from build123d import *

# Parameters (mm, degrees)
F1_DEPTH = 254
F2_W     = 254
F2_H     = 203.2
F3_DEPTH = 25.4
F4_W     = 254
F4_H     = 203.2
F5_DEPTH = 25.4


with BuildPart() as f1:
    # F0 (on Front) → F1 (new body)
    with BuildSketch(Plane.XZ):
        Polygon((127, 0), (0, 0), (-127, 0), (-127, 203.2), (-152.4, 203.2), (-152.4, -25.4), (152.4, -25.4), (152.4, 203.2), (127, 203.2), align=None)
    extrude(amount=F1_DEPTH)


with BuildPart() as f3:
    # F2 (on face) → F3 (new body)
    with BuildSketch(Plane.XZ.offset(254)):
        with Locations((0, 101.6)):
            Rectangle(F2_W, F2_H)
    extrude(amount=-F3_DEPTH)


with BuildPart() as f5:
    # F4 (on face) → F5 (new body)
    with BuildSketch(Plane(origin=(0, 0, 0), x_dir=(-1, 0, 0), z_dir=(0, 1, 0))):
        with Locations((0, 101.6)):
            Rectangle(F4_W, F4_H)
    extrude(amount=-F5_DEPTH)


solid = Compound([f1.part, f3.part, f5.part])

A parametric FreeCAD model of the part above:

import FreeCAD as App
import Part
import Sketcher
Q = App.Units.Quantity

doc = App.newDocument("Part")
body = doc.addObject("PartDesign::Body", "Body")

# Sketch on XZ plane
sketch1 = body.newObject("Sketcher::SketchObject", "Sketch")
sketch1.AttachmentSupport = (doc.getObject("XZ_Plane"), [""])
sketch1.MapMode = "FlatFace"
sketch1.addGeometry(Part.LineSegment(App.Vector(127, 0, 0), App.Vector(-127, 0, 0)), False)
sketch1.addGeometry(Part.LineSegment(App.Vector(-127, 0, 0), App.Vector(-127, 203, 0)), False)
sketch1.addGeometry(Part.LineSegment(App.Vector(-127, 203, 0), App.Vector(-152, 203, 0)), False)
sketch1.addGeometry(Part.LineSegment(App.Vector(-152, 203, 0), App.Vector(-152, -25, 0)), False)
sketch1.addGeometry(Part.LineSegment(App.Vector(-152, -25, 0), App.Vector(152, -25, 0)), False)
sketch1.addGeometry(Part.LineSegment(App.Vector(152, -25, 0), App.Vector(152, 203, 0)), False)
sketch1.addGeometry(Part.LineSegment(App.Vector(152, 203, 0), App.Vector(127, 203, 0)), False)
sketch1.addGeometry(Part.LineSegment(App.Vector(127, 203, 0), App.Vector(127, 0, 0)), False)
sketch1.addConstraint(Sketcher.Constraint("Coincident", 0, 2, 1, 1))
sketch1.addConstraint(Sketcher.Constraint("Coincident", 1, 2, 2, 1))
sketch1.addConstraint(Sketcher.Constraint("Coincident", 2, 2, 3, 1))
sketch1.addConstraint(Sketcher.Constraint("Coincident", 3, 2, 4, 1))
sketch1.addConstraint(Sketcher.Constraint("Coincident", 4, 2, 5, 1))
sketch1.addConstraint(Sketcher.Constraint("Coincident", 5, 2, 6, 1))
sketch1.addConstraint(Sketcher.Constraint("Coincident", 6, 2, 7, 1))
sketch1.addConstraint(Sketcher.Constraint("Coincident", 7, 2, 0, 1))
sketch1.addConstraint(Sketcher.Constraint("Horizontal", 0))
sketch1.addConstraint(Sketcher.Constraint("Vertical", 1))
sketch1.addConstraint(Sketcher.Constraint("Horizontal", 2))
sketch1.addConstraint(Sketcher.Constraint("Vertical", 3))
sketch1.addConstraint(Sketcher.Constraint("Horizontal", 4))
sketch1.addConstraint(Sketcher.Constraint("Vertical", 5))
sketch1.addConstraint(Sketcher.Constraint("Horizontal", 6))
sketch1.addConstraint(Sketcher.Constraint("Vertical", 7))
sketch1.addConstraint(Sketcher.Constraint("Symmetric", 0, 2, 7, 2, -1, 1))
sketch1.addConstraint(Sketcher.Constraint("Symmetric", 2, 2, 5, 2, -2))
sketch1.addConstraint(Sketcher.Constraint("DistanceX", 0, 2, 0, 1, Q("10 in")))
sketch1.addConstraint(Sketcher.Constraint("DistanceX", 2, 2, 2, 1, Q("1 in")))
sketch1.addConstraint(Sketcher.Constraint("DistanceY", 1, 1, 1, 2, Q("8 in")))
sketch1.addConstraint(Sketcher.Constraint("DistanceY", 3, 2, 3, 1, Q("9 in")))
pad1 = body.newObject("PartDesign::Pad", "Pad")
pad1.Profile = sketch1
pad1.Length = Q("10 in")
body2 = doc.addObject("PartDesign::Body", "Body001")

# Sketch on XZ plane
sketch2 = body2.newObject("Sketcher::SketchObject", "Sketch001")
sketch2.AttachmentSupport = (doc.getObject("XZ_Plane001"), [""])
sketch2.MapMode = "FlatFace"
sketch2.AttachmentOffset = App.Placement(App.Vector(0, 0, 10 * 25.4), App.Rotation())
sketch2.addGeometry(Part.LineSegment(App.Vector(-127, 203, 0), App.Vector(-127, 0, 0)), False)
sketch2.addGeometry(Part.LineSegment(App.Vector(-127, 0, 0), App.Vector(127, 0, 0)), False)
sketch2.addGeometry(Part.LineSegment(App.Vector(127, 0, 0), App.Vector(127, 203, 0)), False)
sketch2.addGeometry(Part.LineSegment(App.Vector(127, 203, 0), App.Vector(-127, 203, 0)), False)
sketch2.addConstraint(Sketcher.Constraint("Coincident", 0, 2, 1, 1))
sketch2.addConstraint(Sketcher.Constraint("Coincident", 1, 2, 2, 1))
sketch2.addConstraint(Sketcher.Constraint("Coincident", 2, 2, 3, 1))
sketch2.addConstraint(Sketcher.Constraint("Coincident", 3, 2, 0, 1))
sketch2.addConstraint(Sketcher.Constraint("Vertical", 0))
sketch2.addConstraint(Sketcher.Constraint("Horizontal", 1))
sketch2.addConstraint(Sketcher.Constraint("Vertical", 2))
sketch2.addConstraint(Sketcher.Constraint("Horizontal", 3))
sketch2.addConstraint(Sketcher.Constraint("Symmetric", 0, 2, 1, 2, -1, 1))
sketch2.addConstraint(Sketcher.Constraint("DistanceX", 1, 1, 1, 2, Q("10 in")))
sketch2.addConstraint(Sketcher.Constraint("DistanceY", 0, 2, 0, 1, Q("8 in")))
pad2 = body2.newObject("PartDesign::Pad", "Pad001")
pad2.Profile = sketch2
pad2.Length = Q("1 in")
pad2.Reversed = True
body3 = doc.addObject("PartDesign::Body", "Body002")

# Sketch on XZ plane
sketch3 = body3.newObject("Sketcher::SketchObject", "Sketch002")
sketch3.AttachmentSupport = (doc.getObject("XZ_Plane002"), [""])
sketch3.MapMode = "FlatFace"
sketch3.addGeometry(Part.LineSegment(App.Vector(127, 203, 0), App.Vector(127, 0, 0)), False)
sketch3.addGeometry(Part.LineSegment(App.Vector(127, 0, 0), App.Vector(-127, 0, 0)), False)
sketch3.addGeometry(Part.LineSegment(App.Vector(-127, 0, 0), App.Vector(-127, 203, 0)), False)
sketch3.addGeometry(Part.LineSegment(App.Vector(-127, 203, 0), App.Vector(127, 203, 0)), False)
sketch3.addConstraint(Sketcher.Constraint("Coincident", 0, 2, 1, 1))
sketch3.addConstraint(Sketcher.Constraint("Coincident", 1, 2, 2, 1))
sketch3.addConstraint(Sketcher.Constraint("Coincident", 2, 2, 3, 1))
sketch3.addConstraint(Sketcher.Constraint("Coincident", 3, 2, 0, 1))
sketch3.addConstraint(Sketcher.Constraint("Vertical", 0))
sketch3.addConstraint(Sketcher.Constraint("Horizontal", 1))
sketch3.addConstraint(Sketcher.Constraint("Vertical", 2))
sketch3.addConstraint(Sketcher.Constraint("Horizontal", 3))
sketch3.addConstraint(Sketcher.Constraint("Symmetric", 0, 2, 1, 2, -1, 1))
sketch3.addConstraint(Sketcher.Constraint("DistanceX", 1, 2, 1, 1, Q("10 in")))
sketch3.addConstraint(Sketcher.Constraint("DistanceY", 0, 2, 0, 1, Q("8 in")))
pad3 = body3.newObject("PartDesign::Pad", "Pad002")
pad3.Profile = sketch3
pad3.Length = Q("1 in")

doc.recompute()
